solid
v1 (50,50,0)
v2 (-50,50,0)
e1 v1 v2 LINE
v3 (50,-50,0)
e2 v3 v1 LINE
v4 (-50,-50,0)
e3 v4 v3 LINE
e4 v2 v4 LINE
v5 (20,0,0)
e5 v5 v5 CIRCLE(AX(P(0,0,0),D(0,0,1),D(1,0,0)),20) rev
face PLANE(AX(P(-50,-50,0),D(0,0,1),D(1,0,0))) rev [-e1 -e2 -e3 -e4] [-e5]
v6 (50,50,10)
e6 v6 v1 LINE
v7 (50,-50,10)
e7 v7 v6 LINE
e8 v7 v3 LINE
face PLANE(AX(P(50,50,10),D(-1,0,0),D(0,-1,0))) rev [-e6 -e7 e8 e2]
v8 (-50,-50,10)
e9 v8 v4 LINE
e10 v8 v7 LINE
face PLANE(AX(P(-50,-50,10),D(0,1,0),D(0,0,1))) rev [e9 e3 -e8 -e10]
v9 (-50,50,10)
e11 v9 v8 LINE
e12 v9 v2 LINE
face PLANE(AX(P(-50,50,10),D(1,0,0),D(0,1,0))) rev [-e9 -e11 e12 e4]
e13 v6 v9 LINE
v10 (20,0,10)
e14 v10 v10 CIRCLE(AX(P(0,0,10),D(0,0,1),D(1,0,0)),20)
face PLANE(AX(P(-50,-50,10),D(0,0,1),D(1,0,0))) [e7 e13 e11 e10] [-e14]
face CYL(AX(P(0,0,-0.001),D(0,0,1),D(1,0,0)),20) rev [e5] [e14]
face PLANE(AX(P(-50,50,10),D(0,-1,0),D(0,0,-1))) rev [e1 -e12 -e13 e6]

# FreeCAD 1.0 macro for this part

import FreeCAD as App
import Part
import Sketcher

V = App.Vector
Q = App.Units.Quantity


def add_polygon(sketch, points):
    """Adds a closed chain of lines whose ends are joined by coincident constraints."""
    first, n = sketch.GeometryCount, len(points)
    for a, b in zip(points, points[1:] + points[:1]):
        sketch.addGeometry(Part.LineSegment(App.Vector(*a, 0), App.Vector(*b, 0)), False)
    for i in range(n):
        sketch.addConstraint(Sketcher.Constraint("Coincident", first + i, 2, first + (i + 1) % n, 1))

doc = App.newDocument("Part")
params = doc.addObject("Spreadsheet::Sheet", "Params")
for row, (alias, value) in enumerate([
    ("sketch1_width", "100 mm"),
    ("pad1_length", "10 mm"),
    ("sketch2_diameter", "40 mm"),
], start=1):
    params.set(f"A{row}", alias)
    params.set(f"B{row}", "=" + value)
    params.setAlias(f"B{row}", alias)

body = doc.addObject("PartDesign::Body", "Body")

# Sketch on XY plane
sketch1 = body.newObject("Sketcher::SketchObject", "Sketch")
sketch1.AttachmentSupport = (doc.getObject("XY_Plane"), [""])
sketch1.MapMode = "FlatFace"
add_polygon(sketch1, [(-50, 50), (-50, -50), (50, -50), (50, 50)])  # lines 0-3
sketch1.addConstraint(Sketcher.Constraint("Vertical", 0))
sketch1.addConstraint(Sketcher.Constraint("Horizontal", 1))
sketch1.addConstraint(Sketcher.Constraint("Vertical", 2))
sketch1.addConstraint(Sketcher.Constraint("Horizontal", 3))
sketch1.addConstraint(Sketcher.Constraint("Symmetric", 0, 2, 2, 2, -1, 1))
sketch1.addConstraint(Sketcher.Constraint("Equal", 3, 0))
sketch1.addConstraint(Sketcher.Constraint("DistanceX", 1, 1, 1, 2, Q("100 mm")))
sketch1.setExpression("Constraints[10]", "Params.sketch1_width")
pad1 = body.newObject("PartDesign::Pad", "Pad")
pad1.Profile = sketch1
pad1.setExpression("Length", "Params.pad1_length")

# Sketch on XY plane
sketch2 = body.newObject("Sketcher::SketchObject", "Sketch001")
sketch2.AttachmentSupport = (doc.getObject("XY_Plane"), [""])
sketch2.MapMode = "FlatFace"
sketch2.AttachmentOffset = App.Placement(V(0, 0, 10), App.Rotation())
sketch2.addGeometry(Part.Circle(V(0, 0, 0), V(0, 0, 1), 20), False)
sketch2.addConstraint(Sketcher.Constraint("Coincident", 0, 3, -1, 1))
sketch2.addConstraint(Sketcher.Constraint("Diameter", 0, Q("40 mm")))
sketch2.setExpression("Constraints[1]", "Params.sketch2_diameter")
pocket1 = body.newObject("PartDesign::Pocket", "Pocket")
pocket1.Profile = sketch2
pocket1.Type = "UpToFirst"

doc.recompute()
